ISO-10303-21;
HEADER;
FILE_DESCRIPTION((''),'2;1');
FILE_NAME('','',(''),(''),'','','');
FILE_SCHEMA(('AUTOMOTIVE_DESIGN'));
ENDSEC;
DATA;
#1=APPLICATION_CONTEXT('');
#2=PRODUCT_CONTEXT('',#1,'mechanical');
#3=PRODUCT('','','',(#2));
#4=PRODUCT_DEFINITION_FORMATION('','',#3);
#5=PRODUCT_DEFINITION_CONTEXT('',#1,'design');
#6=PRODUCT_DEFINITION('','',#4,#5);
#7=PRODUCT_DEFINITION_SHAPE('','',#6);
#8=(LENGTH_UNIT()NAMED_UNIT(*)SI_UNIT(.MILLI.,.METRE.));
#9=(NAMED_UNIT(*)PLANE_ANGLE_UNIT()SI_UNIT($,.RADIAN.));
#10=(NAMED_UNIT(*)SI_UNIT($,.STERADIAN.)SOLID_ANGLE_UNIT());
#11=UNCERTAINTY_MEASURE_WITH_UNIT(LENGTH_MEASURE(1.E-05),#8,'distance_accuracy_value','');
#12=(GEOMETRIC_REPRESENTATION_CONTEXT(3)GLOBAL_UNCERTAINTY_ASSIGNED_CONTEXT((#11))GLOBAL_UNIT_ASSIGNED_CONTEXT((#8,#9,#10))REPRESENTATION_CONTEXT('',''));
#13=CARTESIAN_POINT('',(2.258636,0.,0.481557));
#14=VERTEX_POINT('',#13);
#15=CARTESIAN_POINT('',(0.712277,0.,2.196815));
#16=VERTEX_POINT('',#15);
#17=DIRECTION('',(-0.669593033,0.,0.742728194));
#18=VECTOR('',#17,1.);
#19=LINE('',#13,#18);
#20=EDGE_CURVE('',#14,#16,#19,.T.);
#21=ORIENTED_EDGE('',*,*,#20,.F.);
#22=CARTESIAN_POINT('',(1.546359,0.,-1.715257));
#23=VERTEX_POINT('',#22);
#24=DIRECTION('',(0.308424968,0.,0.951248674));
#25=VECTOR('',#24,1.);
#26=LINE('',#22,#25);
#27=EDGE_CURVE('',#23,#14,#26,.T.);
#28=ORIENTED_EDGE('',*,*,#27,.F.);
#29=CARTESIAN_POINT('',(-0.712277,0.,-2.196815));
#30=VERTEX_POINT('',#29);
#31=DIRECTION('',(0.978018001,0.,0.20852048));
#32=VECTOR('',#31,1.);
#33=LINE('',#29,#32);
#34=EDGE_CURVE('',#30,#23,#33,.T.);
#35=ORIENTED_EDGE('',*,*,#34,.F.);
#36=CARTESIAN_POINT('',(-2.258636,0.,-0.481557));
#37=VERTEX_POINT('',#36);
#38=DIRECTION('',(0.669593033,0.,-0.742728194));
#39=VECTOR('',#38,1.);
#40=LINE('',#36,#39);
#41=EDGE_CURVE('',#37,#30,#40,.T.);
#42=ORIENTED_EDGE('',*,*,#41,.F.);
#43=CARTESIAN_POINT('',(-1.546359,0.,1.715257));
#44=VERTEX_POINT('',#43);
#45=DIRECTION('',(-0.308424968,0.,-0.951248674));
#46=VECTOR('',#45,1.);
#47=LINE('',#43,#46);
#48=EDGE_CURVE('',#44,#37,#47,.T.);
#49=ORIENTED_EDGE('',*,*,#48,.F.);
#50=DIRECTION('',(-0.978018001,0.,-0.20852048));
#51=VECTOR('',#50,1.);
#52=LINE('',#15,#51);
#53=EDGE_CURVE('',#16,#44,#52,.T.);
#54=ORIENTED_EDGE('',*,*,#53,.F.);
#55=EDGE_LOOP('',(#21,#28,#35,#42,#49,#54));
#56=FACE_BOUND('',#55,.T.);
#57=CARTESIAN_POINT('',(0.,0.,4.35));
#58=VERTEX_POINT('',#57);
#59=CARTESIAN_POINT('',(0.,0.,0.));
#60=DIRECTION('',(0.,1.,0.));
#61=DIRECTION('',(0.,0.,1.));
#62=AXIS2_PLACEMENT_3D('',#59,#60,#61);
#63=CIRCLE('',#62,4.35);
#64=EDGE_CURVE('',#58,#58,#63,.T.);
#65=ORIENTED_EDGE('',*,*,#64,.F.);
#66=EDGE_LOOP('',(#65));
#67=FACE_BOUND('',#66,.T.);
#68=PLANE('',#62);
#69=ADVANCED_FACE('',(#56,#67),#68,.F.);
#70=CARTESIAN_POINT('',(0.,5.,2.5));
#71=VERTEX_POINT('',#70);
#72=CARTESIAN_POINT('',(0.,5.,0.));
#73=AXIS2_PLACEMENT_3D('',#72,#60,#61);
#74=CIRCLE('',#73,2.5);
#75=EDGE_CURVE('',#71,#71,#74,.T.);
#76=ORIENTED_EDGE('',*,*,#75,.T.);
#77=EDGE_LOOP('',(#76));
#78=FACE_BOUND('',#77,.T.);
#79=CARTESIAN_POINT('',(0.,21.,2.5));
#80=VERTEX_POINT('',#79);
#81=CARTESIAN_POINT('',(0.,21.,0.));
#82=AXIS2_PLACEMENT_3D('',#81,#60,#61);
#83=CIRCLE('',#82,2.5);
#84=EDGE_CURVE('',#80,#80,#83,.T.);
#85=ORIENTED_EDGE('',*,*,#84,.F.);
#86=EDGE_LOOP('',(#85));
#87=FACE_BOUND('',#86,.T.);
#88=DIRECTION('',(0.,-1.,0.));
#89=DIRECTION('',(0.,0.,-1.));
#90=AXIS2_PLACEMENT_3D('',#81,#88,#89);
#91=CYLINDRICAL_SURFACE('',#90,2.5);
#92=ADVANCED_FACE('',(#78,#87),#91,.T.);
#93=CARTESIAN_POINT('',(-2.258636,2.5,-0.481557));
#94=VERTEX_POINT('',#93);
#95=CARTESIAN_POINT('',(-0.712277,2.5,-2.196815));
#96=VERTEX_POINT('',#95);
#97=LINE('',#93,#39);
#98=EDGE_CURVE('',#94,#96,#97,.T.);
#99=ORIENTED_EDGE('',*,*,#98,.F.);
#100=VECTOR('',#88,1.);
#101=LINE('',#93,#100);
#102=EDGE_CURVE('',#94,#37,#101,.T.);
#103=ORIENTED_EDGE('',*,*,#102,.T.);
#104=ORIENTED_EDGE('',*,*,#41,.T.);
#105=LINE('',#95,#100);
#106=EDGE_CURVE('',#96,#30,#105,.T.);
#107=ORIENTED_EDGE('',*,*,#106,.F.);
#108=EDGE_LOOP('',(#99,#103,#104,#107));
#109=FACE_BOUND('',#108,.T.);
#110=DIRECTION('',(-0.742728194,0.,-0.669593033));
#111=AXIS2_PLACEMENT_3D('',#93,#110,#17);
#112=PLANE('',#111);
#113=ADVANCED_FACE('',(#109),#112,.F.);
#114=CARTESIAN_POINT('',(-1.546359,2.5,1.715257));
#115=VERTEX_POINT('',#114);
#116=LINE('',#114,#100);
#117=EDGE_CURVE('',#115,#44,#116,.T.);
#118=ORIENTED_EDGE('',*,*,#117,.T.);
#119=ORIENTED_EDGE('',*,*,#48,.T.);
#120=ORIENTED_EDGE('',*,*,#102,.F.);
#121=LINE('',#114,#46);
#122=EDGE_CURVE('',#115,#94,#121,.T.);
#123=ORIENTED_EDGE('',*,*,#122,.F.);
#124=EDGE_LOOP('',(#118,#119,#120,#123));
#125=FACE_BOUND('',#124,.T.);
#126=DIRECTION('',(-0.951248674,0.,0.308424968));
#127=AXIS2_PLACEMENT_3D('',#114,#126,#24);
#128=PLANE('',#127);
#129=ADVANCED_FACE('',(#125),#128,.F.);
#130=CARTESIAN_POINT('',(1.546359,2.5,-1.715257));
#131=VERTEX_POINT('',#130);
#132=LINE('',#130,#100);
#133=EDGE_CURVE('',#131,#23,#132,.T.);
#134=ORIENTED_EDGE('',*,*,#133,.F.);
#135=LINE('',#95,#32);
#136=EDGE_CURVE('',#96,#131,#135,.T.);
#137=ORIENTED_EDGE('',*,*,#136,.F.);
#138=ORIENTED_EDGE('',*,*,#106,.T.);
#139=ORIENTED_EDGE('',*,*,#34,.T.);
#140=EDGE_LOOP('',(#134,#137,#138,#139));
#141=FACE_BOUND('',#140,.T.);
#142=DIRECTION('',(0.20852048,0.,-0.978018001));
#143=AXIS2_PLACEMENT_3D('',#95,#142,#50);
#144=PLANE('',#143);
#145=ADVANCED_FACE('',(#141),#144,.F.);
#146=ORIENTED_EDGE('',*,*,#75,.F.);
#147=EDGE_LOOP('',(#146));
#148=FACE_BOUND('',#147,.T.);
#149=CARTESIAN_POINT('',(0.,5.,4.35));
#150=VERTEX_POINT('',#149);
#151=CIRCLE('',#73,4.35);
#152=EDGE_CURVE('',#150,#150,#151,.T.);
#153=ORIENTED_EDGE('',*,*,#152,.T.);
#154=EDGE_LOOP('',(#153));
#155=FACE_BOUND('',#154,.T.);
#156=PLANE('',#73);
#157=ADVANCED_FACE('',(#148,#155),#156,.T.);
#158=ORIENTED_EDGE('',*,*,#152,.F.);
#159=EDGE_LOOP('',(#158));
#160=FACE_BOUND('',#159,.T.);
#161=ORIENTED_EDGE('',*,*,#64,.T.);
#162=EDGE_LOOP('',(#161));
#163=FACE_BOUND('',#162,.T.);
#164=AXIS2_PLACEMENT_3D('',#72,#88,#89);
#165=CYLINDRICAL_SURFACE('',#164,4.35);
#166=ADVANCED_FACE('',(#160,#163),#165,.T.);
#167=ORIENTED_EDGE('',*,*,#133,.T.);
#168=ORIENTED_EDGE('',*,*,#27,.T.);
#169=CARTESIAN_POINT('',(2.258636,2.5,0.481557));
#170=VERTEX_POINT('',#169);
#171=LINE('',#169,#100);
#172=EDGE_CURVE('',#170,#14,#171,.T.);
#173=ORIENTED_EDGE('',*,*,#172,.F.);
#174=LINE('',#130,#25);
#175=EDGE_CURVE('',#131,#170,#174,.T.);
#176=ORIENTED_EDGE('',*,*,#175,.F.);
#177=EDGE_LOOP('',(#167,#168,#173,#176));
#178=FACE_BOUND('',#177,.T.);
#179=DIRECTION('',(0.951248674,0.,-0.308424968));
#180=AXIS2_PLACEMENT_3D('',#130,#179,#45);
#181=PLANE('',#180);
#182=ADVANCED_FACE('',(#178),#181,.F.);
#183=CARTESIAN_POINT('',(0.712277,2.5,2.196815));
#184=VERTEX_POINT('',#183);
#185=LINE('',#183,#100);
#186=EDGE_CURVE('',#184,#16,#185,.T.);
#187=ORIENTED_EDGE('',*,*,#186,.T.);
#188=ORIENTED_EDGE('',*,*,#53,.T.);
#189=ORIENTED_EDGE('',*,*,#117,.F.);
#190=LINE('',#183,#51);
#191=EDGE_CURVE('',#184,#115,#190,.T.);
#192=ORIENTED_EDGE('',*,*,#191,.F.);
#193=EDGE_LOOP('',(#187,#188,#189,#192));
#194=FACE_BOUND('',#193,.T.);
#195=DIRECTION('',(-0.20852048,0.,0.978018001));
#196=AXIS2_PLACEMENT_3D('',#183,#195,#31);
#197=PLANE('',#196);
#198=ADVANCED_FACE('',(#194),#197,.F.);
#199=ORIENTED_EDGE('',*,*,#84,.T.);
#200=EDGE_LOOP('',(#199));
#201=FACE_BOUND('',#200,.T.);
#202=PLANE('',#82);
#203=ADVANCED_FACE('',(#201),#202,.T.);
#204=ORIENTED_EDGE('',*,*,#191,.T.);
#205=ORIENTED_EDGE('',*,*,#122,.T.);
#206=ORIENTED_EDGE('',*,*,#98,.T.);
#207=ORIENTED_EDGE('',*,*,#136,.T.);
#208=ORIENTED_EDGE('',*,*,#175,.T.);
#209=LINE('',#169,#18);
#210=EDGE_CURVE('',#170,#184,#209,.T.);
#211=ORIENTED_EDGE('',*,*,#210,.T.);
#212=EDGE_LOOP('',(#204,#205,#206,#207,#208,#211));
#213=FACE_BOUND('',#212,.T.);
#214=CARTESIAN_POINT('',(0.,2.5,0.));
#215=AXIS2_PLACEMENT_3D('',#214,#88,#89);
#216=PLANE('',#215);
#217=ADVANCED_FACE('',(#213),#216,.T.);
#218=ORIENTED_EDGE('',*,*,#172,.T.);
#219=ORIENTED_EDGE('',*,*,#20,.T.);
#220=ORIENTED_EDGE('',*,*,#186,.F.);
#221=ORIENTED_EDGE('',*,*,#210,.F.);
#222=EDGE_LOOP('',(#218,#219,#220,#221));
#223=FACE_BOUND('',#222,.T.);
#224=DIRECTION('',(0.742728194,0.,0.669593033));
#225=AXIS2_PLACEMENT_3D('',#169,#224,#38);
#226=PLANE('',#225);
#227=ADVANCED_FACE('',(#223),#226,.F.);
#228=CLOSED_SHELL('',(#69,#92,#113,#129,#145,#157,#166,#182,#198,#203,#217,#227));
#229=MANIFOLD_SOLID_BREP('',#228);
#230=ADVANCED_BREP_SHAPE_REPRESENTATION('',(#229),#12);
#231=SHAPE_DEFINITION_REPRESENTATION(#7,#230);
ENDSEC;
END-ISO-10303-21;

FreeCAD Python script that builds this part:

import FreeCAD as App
import Part
import Sketcher

doc = App.newDocument("Part")
body = doc.addObject("PartDesign::Body", "Body")

sketch1 = doc.addObject("Sketcher::SketchObject", "Sketch")
body.addObject(sketch1)
sketch1.AttachmentSupport = (doc.XZ_Plane, [""])
sketch1.MapMode = "FlatFace"
sketch1.addGeometry(Part.Circle(App.Vector(0, 0, 0), App.Vector(0, 0, 1), 4.35), False)
sketch1.addConstraint([
    Sketcher.Constraint("Coincident", 0, 3, -1, 1),
    Sketcher.Constraint("Diameter", 0, 8.7),
])
pad1 = doc.addObject("PartDesign::Pad", "Pad")
body.addObject(pad1)
pad1.Profile = sketch1
pad1.Length = 5
pad1.Reversed = True

sketch2 = doc.addObject("Sketcher::SketchObject", "Sketch001")
body.addObject(sketch2)
sketch2.AttachmentSupport = (doc.XZ_Plane, [""])
sketch2.MapMode = "FlatFace"
sketch2.AttachmentOffset = App.Placement(App.Vector(0, 0, -5), App.Rotation())
sketch2.addGeometry(Part.Circle(App.Vector(0, 0, 0), App.Vector(0, 0, 1), 2.5), False)
sketch2.addConstraint([
    Sketcher.Constraint("Coincident", 0, 3, -1, 1),
    Sketcher.Constraint("Diameter", 0, 5.0),
])
pad2 = doc.addObject("PartDesign::Pad", "Pad001")
body.addObject(pad2)
pad2.Profile = sketch2
pad2.Length = 16
pad2.Reversed = True

sketch3 = doc.addObject("Sketcher::SketchObject", "Sketch002")
body.addObject(sketch3)
sketch3.AttachmentSupport = (doc.XZ_Plane, [""])
sketch3.MapMode = "FlatFace"
sketch3.addGeometry([
    Part.LineSegment(App.Vector(1.546359, -1.715257, 0), App.Vector(2.258636, 0.481557, 0)),
    Part.LineSegment(App.Vector(2.258636, 0.481557, 0), App.Vector(0.712277, 2.196815, 0)),
    Part.LineSegment(App.Vector(0.712277, 2.196815, 0), App.Vector(-1.546359, 1.715257, 0)),
    Part.LineSegment(App.Vector(-1.546359, 1.715257, 0), App.Vector(-2.258636, -0.481557, 0)),
    Part.LineSegment(App.Vector(-2.258636, -0.481557, 0), App.Vector(-0.712277, -2.196815, 0)),
    Part.LineSegment(App.Vector(-0.712277, -2.196815, 0), App.Vector(1.546359, -1.715257, 0)),
], False)
sketch3.addConstraint([
    Sketcher.Constraint("Coincident", 0, 2, 1, 1),
    Sketcher.Constraint("Coincident", 1, 2, 2, 1),
    Sketcher.Constraint("Coincident", 2, 2, 3, 1),
    Sketcher.Constraint("Coincident", 3, 2, 4, 1),
    Sketcher.Constraint("Coincident", 4, 2, 5, 1),
    Sketcher.Constraint("Coincident", 5, 2, 0, 1),
    Sketcher.Constraint("Symmetric", 0, 2, 3, 2, -1, 1),
    Sketcher.Constraint("Symmetric", 1, 2, 4, 2, -1, 1),
    Sketcher.Constraint("Symmetric", 2, 2, 5, 2, -1, 1),
    Sketcher.Constraint("Equal", 0, 1),
    Sketcher.Constraint("Equal", 1, 2),
    Sketcher.Constraint("Distance", 0, 2.309401),
    Sketcher.Constraint("DistanceY", 0, 2, 2, 2, 1.2337),
    Sketcher.Constraint("DistanceX", 2, 2, -1, 1, 1.546359),
    Sketcher.Constraint("DistanceX", 1, 2, 0, 2, 1.546359),
])
pocket1 = doc.addObject("PartDesign::Pocket", "Pocket")
body.addObject(pocket1)
pocket1.Profile = sketch3
pocket1.Length = 2.5

doc.recompute()
